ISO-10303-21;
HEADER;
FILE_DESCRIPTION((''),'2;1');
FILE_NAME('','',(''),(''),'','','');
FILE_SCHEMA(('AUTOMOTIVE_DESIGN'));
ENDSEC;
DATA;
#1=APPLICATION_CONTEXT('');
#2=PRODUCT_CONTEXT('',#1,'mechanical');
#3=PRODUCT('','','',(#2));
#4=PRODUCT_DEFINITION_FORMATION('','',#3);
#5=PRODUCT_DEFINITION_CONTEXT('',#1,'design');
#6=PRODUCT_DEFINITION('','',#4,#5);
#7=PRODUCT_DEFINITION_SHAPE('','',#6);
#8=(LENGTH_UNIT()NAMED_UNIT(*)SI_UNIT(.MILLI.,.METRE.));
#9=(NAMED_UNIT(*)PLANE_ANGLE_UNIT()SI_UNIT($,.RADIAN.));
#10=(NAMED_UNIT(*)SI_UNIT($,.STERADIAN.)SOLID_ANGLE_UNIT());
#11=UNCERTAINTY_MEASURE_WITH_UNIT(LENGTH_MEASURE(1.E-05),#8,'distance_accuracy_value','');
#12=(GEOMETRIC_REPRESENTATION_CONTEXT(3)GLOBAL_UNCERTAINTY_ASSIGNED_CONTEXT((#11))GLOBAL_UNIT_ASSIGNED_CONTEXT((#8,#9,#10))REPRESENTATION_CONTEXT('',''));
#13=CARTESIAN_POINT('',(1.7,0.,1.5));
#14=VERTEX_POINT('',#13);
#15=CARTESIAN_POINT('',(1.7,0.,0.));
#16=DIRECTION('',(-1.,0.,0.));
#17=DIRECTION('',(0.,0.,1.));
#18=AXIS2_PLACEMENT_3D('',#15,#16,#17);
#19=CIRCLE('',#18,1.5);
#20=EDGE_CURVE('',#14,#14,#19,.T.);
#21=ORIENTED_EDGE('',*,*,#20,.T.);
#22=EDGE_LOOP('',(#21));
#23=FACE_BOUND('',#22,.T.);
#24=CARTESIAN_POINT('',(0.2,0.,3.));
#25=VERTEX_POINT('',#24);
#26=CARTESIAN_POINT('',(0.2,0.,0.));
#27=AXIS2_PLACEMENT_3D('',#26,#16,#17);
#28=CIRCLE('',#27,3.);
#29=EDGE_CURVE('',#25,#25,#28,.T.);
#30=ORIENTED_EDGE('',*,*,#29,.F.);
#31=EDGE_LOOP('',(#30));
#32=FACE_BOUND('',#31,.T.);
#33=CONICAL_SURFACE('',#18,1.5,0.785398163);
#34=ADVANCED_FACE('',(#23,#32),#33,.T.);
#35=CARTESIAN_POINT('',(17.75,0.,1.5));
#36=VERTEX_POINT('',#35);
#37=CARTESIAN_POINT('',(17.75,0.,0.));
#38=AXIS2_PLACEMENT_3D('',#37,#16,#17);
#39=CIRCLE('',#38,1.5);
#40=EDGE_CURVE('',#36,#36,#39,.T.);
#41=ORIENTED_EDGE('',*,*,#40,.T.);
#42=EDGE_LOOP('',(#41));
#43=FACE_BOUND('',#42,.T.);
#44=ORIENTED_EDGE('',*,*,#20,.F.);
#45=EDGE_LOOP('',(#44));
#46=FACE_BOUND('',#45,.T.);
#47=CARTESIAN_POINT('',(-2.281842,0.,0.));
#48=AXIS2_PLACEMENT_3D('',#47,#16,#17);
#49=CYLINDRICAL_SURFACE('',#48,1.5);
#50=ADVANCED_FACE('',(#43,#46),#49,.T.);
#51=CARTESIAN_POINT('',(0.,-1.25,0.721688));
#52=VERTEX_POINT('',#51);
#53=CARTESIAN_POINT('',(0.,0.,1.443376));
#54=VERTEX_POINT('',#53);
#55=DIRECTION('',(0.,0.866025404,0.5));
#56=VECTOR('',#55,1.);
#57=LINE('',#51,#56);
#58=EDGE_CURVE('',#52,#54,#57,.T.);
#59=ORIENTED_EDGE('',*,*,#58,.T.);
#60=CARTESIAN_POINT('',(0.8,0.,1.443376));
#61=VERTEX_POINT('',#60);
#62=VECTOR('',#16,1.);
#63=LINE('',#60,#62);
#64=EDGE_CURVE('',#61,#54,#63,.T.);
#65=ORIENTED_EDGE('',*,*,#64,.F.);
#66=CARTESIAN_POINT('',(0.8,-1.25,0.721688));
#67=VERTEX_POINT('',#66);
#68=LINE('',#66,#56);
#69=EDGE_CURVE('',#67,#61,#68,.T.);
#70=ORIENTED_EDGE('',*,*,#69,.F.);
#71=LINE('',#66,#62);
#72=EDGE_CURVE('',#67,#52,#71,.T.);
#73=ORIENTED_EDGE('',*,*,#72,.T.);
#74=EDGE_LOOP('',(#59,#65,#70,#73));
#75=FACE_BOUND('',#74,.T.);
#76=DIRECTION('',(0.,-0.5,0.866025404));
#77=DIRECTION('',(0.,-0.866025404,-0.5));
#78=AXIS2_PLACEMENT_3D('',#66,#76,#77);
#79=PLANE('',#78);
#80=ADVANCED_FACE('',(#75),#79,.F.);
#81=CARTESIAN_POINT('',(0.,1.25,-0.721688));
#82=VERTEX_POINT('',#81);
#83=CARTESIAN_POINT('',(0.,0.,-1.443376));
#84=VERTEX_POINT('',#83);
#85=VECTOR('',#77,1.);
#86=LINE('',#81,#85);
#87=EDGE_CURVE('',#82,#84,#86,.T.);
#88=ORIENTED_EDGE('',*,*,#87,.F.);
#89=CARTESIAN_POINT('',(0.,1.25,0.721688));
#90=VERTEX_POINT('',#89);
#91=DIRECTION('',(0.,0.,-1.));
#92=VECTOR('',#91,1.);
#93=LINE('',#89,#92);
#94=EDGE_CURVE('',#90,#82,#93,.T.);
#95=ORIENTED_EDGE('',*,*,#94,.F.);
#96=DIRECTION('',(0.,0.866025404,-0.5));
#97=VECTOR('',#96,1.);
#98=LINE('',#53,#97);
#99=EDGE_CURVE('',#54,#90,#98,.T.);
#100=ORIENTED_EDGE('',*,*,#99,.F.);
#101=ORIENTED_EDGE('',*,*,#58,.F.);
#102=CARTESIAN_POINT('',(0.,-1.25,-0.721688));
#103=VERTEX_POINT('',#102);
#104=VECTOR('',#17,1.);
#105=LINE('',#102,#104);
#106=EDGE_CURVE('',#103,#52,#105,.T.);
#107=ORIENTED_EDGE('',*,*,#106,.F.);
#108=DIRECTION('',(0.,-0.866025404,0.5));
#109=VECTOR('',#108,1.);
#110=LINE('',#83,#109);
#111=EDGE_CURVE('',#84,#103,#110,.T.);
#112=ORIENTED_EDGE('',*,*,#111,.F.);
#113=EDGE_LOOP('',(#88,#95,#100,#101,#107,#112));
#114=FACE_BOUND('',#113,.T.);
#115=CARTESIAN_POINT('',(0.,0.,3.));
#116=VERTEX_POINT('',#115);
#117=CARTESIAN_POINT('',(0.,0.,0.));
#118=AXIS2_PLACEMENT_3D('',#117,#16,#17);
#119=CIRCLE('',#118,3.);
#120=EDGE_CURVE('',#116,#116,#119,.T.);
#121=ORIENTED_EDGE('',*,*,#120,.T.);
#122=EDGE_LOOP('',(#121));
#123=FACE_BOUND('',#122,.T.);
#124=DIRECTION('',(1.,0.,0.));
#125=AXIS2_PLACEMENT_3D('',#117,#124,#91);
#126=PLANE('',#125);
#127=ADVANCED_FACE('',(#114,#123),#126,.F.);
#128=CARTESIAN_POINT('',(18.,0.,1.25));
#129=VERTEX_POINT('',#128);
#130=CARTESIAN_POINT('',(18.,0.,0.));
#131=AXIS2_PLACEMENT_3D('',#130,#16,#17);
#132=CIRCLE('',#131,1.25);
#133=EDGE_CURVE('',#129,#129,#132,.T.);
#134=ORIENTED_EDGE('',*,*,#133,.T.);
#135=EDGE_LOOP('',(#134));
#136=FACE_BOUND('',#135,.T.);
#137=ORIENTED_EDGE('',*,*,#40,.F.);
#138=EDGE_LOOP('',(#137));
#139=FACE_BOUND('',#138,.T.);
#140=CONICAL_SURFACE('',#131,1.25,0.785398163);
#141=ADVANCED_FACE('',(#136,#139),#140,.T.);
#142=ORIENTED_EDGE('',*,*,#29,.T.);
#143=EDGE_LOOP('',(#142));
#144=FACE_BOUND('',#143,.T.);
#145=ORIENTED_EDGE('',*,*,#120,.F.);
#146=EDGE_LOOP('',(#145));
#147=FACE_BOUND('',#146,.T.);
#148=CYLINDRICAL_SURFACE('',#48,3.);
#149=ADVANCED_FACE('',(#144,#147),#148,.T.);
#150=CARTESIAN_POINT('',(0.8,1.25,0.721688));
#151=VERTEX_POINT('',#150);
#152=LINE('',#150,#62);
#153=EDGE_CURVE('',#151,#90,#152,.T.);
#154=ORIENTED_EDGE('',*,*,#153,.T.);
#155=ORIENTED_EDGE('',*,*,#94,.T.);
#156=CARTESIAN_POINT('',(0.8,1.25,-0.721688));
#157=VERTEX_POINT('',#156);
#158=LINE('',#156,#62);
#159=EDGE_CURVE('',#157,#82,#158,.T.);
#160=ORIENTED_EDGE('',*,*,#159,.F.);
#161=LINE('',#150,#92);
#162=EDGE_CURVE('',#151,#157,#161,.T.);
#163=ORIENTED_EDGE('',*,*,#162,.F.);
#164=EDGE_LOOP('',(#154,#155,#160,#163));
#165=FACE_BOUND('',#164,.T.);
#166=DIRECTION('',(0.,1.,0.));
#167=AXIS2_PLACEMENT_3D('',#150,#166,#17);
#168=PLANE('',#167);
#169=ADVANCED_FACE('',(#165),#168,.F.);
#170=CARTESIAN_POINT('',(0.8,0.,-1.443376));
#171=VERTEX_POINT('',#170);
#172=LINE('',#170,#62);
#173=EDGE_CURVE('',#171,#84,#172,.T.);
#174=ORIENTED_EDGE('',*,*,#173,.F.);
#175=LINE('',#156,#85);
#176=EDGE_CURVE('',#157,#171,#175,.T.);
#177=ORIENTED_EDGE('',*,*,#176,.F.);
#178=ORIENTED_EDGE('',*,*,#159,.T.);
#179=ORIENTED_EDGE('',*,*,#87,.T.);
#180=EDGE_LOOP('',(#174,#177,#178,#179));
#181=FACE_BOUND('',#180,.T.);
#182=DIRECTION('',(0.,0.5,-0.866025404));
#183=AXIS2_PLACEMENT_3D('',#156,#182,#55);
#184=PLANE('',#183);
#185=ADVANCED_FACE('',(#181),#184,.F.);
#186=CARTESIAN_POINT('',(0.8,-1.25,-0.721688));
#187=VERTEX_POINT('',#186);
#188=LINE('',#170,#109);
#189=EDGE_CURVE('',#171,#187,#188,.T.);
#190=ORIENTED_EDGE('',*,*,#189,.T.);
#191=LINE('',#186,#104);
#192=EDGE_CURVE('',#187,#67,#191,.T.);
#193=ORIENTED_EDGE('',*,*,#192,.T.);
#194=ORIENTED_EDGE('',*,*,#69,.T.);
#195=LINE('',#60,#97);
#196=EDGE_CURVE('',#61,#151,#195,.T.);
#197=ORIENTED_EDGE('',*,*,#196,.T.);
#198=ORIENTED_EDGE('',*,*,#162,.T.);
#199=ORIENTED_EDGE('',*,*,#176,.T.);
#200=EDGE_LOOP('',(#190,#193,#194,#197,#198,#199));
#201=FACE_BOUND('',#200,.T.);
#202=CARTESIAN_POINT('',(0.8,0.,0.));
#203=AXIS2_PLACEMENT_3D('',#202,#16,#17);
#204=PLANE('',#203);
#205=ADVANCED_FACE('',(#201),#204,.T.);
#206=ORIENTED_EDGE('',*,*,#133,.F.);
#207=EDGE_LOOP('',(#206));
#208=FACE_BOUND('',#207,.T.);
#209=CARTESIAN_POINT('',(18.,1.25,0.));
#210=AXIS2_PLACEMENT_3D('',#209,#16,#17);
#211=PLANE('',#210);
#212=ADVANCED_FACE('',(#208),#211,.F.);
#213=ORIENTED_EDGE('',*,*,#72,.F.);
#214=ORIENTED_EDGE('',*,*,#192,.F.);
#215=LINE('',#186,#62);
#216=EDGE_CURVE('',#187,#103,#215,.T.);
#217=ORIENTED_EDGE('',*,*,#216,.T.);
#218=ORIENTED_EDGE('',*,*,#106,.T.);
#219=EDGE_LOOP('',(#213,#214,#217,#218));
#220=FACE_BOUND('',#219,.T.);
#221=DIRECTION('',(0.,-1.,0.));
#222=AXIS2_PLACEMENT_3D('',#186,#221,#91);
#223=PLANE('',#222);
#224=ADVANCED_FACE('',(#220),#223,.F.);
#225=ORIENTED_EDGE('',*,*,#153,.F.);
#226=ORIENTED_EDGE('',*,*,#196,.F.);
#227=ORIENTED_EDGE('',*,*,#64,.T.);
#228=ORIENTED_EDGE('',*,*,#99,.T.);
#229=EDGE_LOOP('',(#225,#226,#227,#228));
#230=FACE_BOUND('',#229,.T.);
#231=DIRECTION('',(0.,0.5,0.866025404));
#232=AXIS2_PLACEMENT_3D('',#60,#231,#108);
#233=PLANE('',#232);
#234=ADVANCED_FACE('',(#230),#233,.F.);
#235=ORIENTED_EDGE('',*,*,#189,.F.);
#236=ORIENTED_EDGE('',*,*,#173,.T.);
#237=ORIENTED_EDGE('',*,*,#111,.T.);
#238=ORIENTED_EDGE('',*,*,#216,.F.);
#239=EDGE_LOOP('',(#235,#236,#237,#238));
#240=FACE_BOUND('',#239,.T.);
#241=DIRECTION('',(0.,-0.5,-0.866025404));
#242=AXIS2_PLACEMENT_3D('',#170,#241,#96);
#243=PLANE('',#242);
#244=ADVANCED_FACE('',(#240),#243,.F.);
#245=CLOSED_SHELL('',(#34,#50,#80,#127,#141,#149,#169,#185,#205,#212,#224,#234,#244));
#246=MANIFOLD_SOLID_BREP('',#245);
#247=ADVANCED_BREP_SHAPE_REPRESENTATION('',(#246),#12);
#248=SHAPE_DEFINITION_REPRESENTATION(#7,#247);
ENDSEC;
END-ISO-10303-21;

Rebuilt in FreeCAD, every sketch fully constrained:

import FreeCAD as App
import Part
import Sketcher
Q = App.Units.Quantity


def add_polygon(sketch, points):
    """Adds a closed chain of lines whose ends are joined by coincident constraints."""
    first, n = sketch.GeometryCount, len(points)
    for a, b in zip(points, points[1:] + points[:1]):
        sketch.addGeometry(Part.LineSegment(App.Vector(*a, 0), App.Vector(*b, 0)), False)
    for i in range(n):
        sketch.addConstraint(Sketcher.Constraint("Coincident", first + i, 2, first + (i + 1) % n, 1))

doc = App.newDocument("Part")
body = doc.addObject("PartDesign::Body", "Body")

# Sketch on XY plane
sketch1 = body.newObject("Sketcher::SketchObject", "Sketch")
sketch1.AttachmentSupport = (doc.getObject("XY_Plane"), [""])
sketch1.MapMode = "FlatFace"
add_polygon(sketch1, [(0, 3), (0, 0), (18, 0), (18, 1.25), (17.75, 1.5), (1.7, 1.5), (0.2, 3)])  # lines 0-6
sketch1.addConstraint([
    Sketcher.Constraint("Vertical", 0),
    Sketcher.Constraint("Horizontal", 1),
    Sketcher.Constraint("Vertical", 2),
    Sketcher.Constraint("Horizontal", 4),
    Sketcher.Constraint("Horizontal", 6),
    Sketcher.Constraint("Coincident", 0, 2, -1, 1),
    Sketcher.Constraint("Parallel", 3, 5),
    Sketcher.Constraint("DistanceX", 1, 1, 1, 2, Q("18 mm")),
    Sketcher.Constraint("DistanceY", 0, 2, 0, 1, Q("3 mm")),
    Sketcher.Constraint("Angle", 3, Q("135 deg")),
    Sketcher.Constraint("DistanceX", 6, 2, 6, 1, Q("0.2 mm")),
    Sketcher.Constraint("DistanceX", 4, 2, 4, 1, Q("16.05 mm")),
    Sketcher.Constraint("DistanceY", -1, 1, 3, 2, Q("1.5 mm")),
])
revolution = body.newObject("PartDesign::Revolution", "Revolution")
revolution.Profile = sketch1
revolution.ReferenceAxis = (sketch1, ["H_Axis"])
revolution.Angle = 360

# Sketch on YZ plane
sketch2 = body.newObject("Sketcher::SketchObject", "Sketch001")
sketch2.AttachmentSupport = (doc.getObject("YZ_Plane"), [""])
sketch2.MapMode = "FlatFace"
add_polygon(sketch2, [(-1.2, 0.7), (0, 1.4), (1.2, 0.7), (1.2, -0.7), (0, -1.4), (-1.2, -0.7)])  # lines 0-5
sketch2.addConstraint([
    Sketcher.Constraint("Vertical", 2),
    Sketcher.Constraint("Vertical", 5),
    Sketcher.Constraint("Symmetric", 0, 2, 3, 2, -1, 1),
    Sketcher.Constraint("Symmetric", 1, 2, 4, 2, -1, 1),
    Sketcher.Constraint("PointOnObject", 0, 2, -2),
    Sketcher.Constraint("Parallel", 0, 3),
    Sketcher.Constraint("Horizontal", 2, 2, 4, 2),
    Sketcher.Constraint("Angle", 0, Q("30 deg")),
    Sketcher.Constraint("DistanceX", 4, 2, 2, 2, Q("2.5 mm")),
    Sketcher.Constraint("DistanceY", 2, 2, 2, 1, Q("1.443376 mm")),
])
pocket1 = body.newObject("PartDesign::Pocket", "Pocket")
pocket1.Profile = sketch2
pocket1.Length = 0.8
pocket1.Reversed = True

doc.recompute()
